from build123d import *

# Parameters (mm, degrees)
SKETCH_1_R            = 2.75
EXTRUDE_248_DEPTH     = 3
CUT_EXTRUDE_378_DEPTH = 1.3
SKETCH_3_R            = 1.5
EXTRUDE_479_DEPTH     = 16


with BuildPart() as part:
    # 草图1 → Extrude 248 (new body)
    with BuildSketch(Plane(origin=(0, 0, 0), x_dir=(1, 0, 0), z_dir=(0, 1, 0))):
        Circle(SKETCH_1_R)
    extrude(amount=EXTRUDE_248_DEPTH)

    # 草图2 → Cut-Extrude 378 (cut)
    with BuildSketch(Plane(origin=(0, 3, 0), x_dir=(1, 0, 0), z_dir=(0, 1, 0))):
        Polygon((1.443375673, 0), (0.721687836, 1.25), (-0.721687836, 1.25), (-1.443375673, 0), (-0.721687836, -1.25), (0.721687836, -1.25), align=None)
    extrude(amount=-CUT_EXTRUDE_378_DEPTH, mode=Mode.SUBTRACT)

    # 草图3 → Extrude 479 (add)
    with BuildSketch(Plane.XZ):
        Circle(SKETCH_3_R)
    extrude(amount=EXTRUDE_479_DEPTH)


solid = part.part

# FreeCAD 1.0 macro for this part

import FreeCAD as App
import Part
import Sketcher
from FreeCAD import Vector
Q = App.Units.Quantity


def add_polygon(sketch, points):
    """Adds a closed chain of lines whose ends are joined by coincident constraints."""
    first, n = sketch.GeometryCount, len(points)
    for a, b in zip(points, points[1:] + points[:1]):
        sketch.addGeometry(Part.LineSegment(App.Vector(*a, 0), App.Vector(*b, 0)), False)
    for i in range(n):
        sketch.addConstraint(Sketcher.Constraint("Coincident", first + i, 2, first + (i + 1) % n, 1))

doc = App.newDocument("Part")
body = doc.addObject("PartDesign::Body", "Body")

sketch1 = doc.addObject("Sketcher::SketchObject", "Sketch")
body.addObject(sketch1)
sketch1.AttachmentSupport = (doc.XZ_Plane, [""])
sketch1.MapMode = "FlatFace"
sketch1.addGeometry(Part.Circle(Vector(0, 0, 0), Vector(0, 0, 1), 2.75), False)
sketch1.addConstraint([
    Sketcher.Constraint("Coincident", 0, 3, -1, 1),
    Sketcher.Constraint("Diameter", 0, 5.5),
])
pad1 = doc.addObject("PartDesign::Pad", "Pad")
body.addObject(pad1)
pad1.Profile = sketch1
pad1.Length = 3
pad1.Reversed = True

sketch2 = doc.addObject("Sketcher::SketchObject", "Sketch001")
body.addObject(sketch2)
sketch2.AttachmentSupport = (doc.XZ_Plane, [""])
sketch2.MapMode = "FlatFace"
sketch2.AttachmentOffset = App.Placement(Vector(0, 0, -3), App.Rotation())
add_polygon(sketch2, [(1.443376, 0), (0.721688, -1.25), (-0.721688, -1.25), (-1.443376, 0), (-0.721688, 1.25), (0.721688, 1.25)])
sketch2.addConstraint([
    Sketcher.Constraint("Horizontal", 1),
    Sketcher.Constraint("Horizontal", 4),
    Sketcher.Constraint("Symmetric", 0, 2, 3, 2, -1, 1),
    Sketcher.Constraint("Symmetric", 2, 2, 5, 2, -1, 1),
    Sketcher.Constraint("PointOnObject", 2, 2, -1),
    Sketcher.Constraint("Parallel", 2, 5),
    Sketcher.Constraint("Vertical", 1, 2, 3, 2),
    Sketcher.Constraint("Angle", 0, Q("-120 deg")),
    Sketcher.Constraint("DistanceY", 1, 2, 3, 2, 2.5),
    Sketcher.Constraint("DistanceX", 1, 2, 1, 1, 1.443376),
])
pocket1 = doc.addObject("PartDesign::Pocket", "Pocket")
body.addObject(pocket1)
pocket1.Profile = sketch2
pocket1.Length = 1.3
pocket1.Reversed = True

sketch3 = doc.addObject("Sketcher::SketchObject", "Sketch002")
body.addObject(sketch3)
sketch3.AttachmentSupport = (doc.XZ_Plane, [""])
sketch3.MapMode = "FlatFace"
sketch3.addGeometry(Part.Circle(Vector(0, 0, 0), Vector(0, 0, 1), 1.5), False)
sketch3.addConstraint([
    Sketcher.Constraint("Coincident", 0, 3, -1, 1),
    Sketcher.Constraint("Diameter", 0, 3.0),
])
pad2 = doc.addObject("PartDesign::Pad", "Pad001")
body.addObject(pad2)
pad2.Profile = sketch3
pad2.Length = 16

doc.recompute()
